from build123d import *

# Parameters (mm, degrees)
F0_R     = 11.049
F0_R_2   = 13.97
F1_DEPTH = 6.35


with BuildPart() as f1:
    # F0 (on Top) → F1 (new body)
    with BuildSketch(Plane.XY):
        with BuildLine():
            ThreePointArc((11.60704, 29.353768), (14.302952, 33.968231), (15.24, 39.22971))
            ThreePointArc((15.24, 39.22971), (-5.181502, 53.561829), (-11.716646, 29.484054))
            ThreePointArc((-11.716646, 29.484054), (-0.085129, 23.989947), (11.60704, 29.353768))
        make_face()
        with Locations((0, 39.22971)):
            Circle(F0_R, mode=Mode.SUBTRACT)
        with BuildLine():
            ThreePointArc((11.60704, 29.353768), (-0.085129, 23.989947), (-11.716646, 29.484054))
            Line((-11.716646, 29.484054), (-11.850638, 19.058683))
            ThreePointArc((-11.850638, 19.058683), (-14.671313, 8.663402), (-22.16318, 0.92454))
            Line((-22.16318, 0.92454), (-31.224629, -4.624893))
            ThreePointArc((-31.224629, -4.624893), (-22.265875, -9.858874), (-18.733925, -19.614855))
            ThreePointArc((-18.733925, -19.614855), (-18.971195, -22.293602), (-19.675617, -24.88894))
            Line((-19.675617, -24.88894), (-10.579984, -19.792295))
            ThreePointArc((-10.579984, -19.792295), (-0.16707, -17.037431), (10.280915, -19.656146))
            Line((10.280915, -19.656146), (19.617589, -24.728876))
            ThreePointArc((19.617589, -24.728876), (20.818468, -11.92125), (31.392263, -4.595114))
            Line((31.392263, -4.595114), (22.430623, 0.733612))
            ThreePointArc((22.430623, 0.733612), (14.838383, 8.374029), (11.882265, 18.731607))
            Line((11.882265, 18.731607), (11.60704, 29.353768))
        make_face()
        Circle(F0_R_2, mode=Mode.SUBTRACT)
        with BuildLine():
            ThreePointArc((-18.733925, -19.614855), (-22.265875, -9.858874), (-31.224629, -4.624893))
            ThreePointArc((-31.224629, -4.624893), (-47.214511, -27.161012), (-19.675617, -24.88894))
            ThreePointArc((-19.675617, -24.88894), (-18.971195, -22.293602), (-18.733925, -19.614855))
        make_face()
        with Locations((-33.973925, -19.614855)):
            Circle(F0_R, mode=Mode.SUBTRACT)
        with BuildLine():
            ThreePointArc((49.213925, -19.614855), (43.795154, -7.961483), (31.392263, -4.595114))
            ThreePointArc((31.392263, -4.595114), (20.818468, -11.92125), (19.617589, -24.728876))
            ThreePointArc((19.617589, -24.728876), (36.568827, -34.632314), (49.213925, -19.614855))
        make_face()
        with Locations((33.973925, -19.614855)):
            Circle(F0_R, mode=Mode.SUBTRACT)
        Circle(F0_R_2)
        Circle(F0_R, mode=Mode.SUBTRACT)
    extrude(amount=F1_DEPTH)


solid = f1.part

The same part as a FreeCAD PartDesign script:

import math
import FreeCAD as App
import Part
import Sketcher
from FreeCAD import Vector
Q = App.Units.Quantity

doc = App.newDocument("Part")
body = doc.addObject("PartDesign::Body", "Body")

# Sketch on XY plane
sketch1 = body.newObject("Sketcher::SketchObject", "Sketch")
sketch1.AttachmentSupport = (doc.getObject("XY_Plane"), [""])
sketch1.MapMode = "FlatFace"
sketch1.addGeometry([
    Part.ArcOfCircle(Part.Circle(Vector(-0.000004, 39.229711, 0), Vector(0, 0, 1), 15.240004), math.radians(-40.393056), math.radians(-0.000003)),  # 0
    Part.ArcOfCircle(Part.Circle(Vector(0, 39.22971, 0), Vector(0, 0, 1), 15.24), math.radians(0), math.radians(219.752961)),  # 1
    Part.LineSegment(Vector(-11.716646, 29.484054, 0), Vector(-11.850638, 19.058683, 0)),  # 2
    Part.ArcOfCircle(Part.Circle(Vector(-33.438854, 19.336146, 0), Vector(0, 0, 1), 21.589999), math.radians(-58.515778), math.radians(-0.736354)),  # 3
    Part.LineSegment(Vector(-22.16318, 0.92454, 0), Vector(-31.224629, -4.624893, 0)),  # 4
    Part.ArcOfCircle(Part.Circle(Vector(-33.973925, -19.614855, 0), Vector(0, 0, 1), 15.24), math.radians(79.606939), math.radians(339.752961)),  # 5
    Part.LineSegment(Vector(-19.675617, -24.88894, 0), Vector(-10.579984, -19.792295, 0)),  # 6
    Part.ArcOfCircle(Part.Circle(Vector(-0.026165, -38.626974, 0), Vector(0, 0, 1), 21.590003), math.radians(61.484231), math.radians(119.263642)),  # 7
    Part.LineSegment(Vector(10.280915, -19.656146, 0), Vector(19.617589, -24.728876, 0)),  # 8
    Part.ArcOfCircle(Part.Circle(Vector(33.973925, -19.614855, 0), Vector(0, 0, 1), 15.24), math.radians(-160.393058), math.radians(-0.000001)),  # 9
    Part.ArcOfCircle(Part.Circle(Vector(33.973926, -19.614854, 0), Vector(0, 0, 1), 15.239999), math.radians(-0.000005), math.radians(99.752964)),  # 10
    Part.LineSegment(Vector(31.392263, -4.595114, 0), Vector(22.430623, 0.733612, 0)),  # 11
    Part.ArcOfCircle(Part.Circle(Vector(33.465023, 19.290826, 0), Vector(0, 0, 1), 21.590001), math.radians(-178.515774), math.radians(-120.736356)),  # 12
    Part.LineSegment(Vector(11.882265, 18.731607, 0), Vector(11.60704, 29.353768, 0)),  # 13
    Part.Circle(Vector(-33.973925, -19.614855, 0), Vector(0, 0, 1), 11.049),  # 14
    Part.Circle(Vector(0, 0, 0), Vector(0, 0, 1), 11.049),  # 15
    Part.Circle(Vector(33.973925, -19.614855, 0), Vector(0, 0, 1), 11.049),  # 16
    Part.Circle(Vector(0, 39.22971, 0), Vector(0, 0, 1), 11.049),  # 17
], False)
sketch1.addConstraint([
    Sketcher.Constraint("Coincident", 0, 2, 1, 1),
    Sketcher.Constraint("Coincident", 1, 2, 2, 1),
    Sketcher.Constraint("Coincident", 2, 2, 3, 2),
    Sketcher.Constraint("Coincident", 3, 1, 4, 1),
    Sketcher.Constraint("Coincident", 4, 2, 5, 1),
    Sketcher.Constraint("Coincident", 5, 2, 6, 1),
    Sketcher.Constraint("Coincident", 6, 2, 7, 2),
    Sketcher.Constraint("Coincident", 7, 1, 8, 1),
    Sketcher.Constraint("Coincident", 8, 2, 9, 1),
    Sketcher.Constraint("Coincident", 9, 2, 10, 1),
    Sketcher.Constraint("Coincident", 10, 2, 11, 1),
    Sketcher.Constraint("Coincident", 11, 2, 12, 2),
    Sketcher.Constraint("Coincident", 12, 1, 13, 1),
    Sketcher.Constraint("Coincident", 13, 2, 0, 1),
    Sketcher.Constraint("Coincident", 15, 3, -1, 1),
    Sketcher.Constraint("Coincident", 1, 3, 0, 3),
    Sketcher.Constraint("Coincident", 10, 3, 9, 3),
    Sketcher.Constraint("Coincident", 14, 3, 5, 3),
    Sketcher.Constraint("Coincident", 16, 3, 9, 3),
    Sketcher.Constraint("Coincident", 17, 3, 0, 3),
    Sketcher.Constraint("PointOnObject", 1, 3, -2),
    Sketcher.Constraint("Radius", 0, Q("0.6000001 in")),
    Sketcher.Constraint("Radius", 5, Q("0.6 in")),
    Sketcher.Constraint("Radius", 9, Q("0.6 in")),
    Sketcher.Constraint("Diameter", 14, Q("0.87 in")),
    Sketcher.Constraint("Diameter", 15, Q("0.87 in")),
    Sketcher.Constraint("Diameter", 16, Q("0.87 in")),
    Sketcher.Constraint("Diameter", 17, Q("0.87 in")),
    Sketcher.Constraint("Radius", 3, Q("0.8499999 in")),
    Sketcher.Constraint("Radius", 7, Q("0.8500001 in")),
    Sketcher.Constraint("Radius", 12, Q("0.85 in")),
    Sketcher.Constraint("DistanceY", 5, 3, 3, 3, Q("38.951001 mm")),
    Sketcher.Constraint("DistanceY", 9, 3, 3, 3, Q("38.951 mm")),
    Sketcher.Constraint("DistanceX", 6, 2, 7, 1, Q("20.860899 mm")),
    Sketcher.Constraint("DistanceX", 11, 2, 12, 3, Q("11.0344 mm")),
    Sketcher.Constraint("Distance", 11, Q("10.426232 mm")),
    Sketcher.Constraint("DistanceY", -1, 1, 0, 3, Q("39.229711 mm")),
    Sketcher.Constraint("DistanceY", -1, 1, 0, 2, Q("39.22971 mm")),
    Sketcher.Constraint("DistanceX", 3, 1, -1, 1, Q("22.16318 mm")),
    Sketcher.Constraint("DistanceY", -1, 1, 3, 1, Q("0.92454 mm")),
    Sketcher.Constraint("DistanceX", 4, 2, -1, 1, Q("31.224629 mm")),
    Sketcher.Constraint("DistanceY", 5, 2, -1, 1, Q("24.88894 mm")),
    Sketcher.Constraint("DistanceX", -1, 1, 8, 2, Q("19.617589 mm")),
    Sketcher.Constraint("DistanceX", -1, 1, 13, 2, Q("11.60704 mm")),
    Sketcher.Constraint("DistanceX", 3, 3, 0, 3, Q("33.43885 mm")),
    Sketcher.Constraint("DistanceX", 5, 3, 3, 3, Q("0.535072 mm")),
    Sketcher.Constraint("DistanceX", 5, 3, 7, 3, Q("33.94776 mm")),
    Sketcher.Constraint("DistanceY", 7, 3, 5, 3, Q("19.012119 mm")),
    Sketcher.Constraint("DistanceX", 7, 3, 9, 3, Q("34.00009 mm")),
    Sketcher.Constraint("DistanceY", 10, 3, 12, 3, Q("38.905679 mm")),
    Sketcher.Constraint("DistanceY", 3, 3, 1, 2, Q("10.147908 mm")),
    Sketcher.Constraint("DistanceY", 2, 2, 1, 2, Q("10.425371 mm")),
    Sketcher.Constraint("DistanceX", 6, 2, 7, 3, Q("10.553819 mm")),
    Sketcher.Constraint("DistanceY", 8, 2, 9, 2, Q("5.114021 mm")),
    Sketcher.Constraint("DistanceY", 10, 3, 10, 2, Q("15.01974 mm")),
    Sketcher.Constraint("DistanceY", 12, 1, 12, 3, Q("0.559219 mm")),
])
pad1 = body.newObject("PartDesign::Pad", "Pad")
pad1.Profile = sketch1
pad1.Length = Q("0.25 in")

doc.recompute()
